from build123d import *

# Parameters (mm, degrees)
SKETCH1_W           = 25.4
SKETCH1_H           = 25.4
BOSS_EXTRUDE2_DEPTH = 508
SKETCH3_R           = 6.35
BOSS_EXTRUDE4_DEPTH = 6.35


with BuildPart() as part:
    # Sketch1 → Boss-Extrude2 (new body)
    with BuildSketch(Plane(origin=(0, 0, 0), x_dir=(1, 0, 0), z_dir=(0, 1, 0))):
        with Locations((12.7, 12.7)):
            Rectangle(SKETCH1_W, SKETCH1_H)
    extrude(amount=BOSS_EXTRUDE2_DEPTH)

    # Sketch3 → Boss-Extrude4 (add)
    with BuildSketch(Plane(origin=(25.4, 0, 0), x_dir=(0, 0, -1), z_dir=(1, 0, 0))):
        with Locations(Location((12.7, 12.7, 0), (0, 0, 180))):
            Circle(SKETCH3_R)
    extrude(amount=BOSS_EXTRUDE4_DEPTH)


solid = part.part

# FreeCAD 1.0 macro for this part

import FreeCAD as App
import Part
import Sketcher

V = App.Vector
Q = App.Units.Quantity


def add_polygon(sketch, points):
    """Adds a closed chain of lines whose ends are joined by coincident constraints."""
    first, n = sketch.GeometryCount, len(points)
    for a, b in zip(points, points[1:] + points[:1]):
        sketch.addGeometry(Part.LineSegment(App.Vector(*a, 0), App.Vector(*b, 0)), False)
    for i in range(n):
        sketch.addConstraint(Sketcher.Constraint("Coincident", first + i, 2, first + (i + 1) % n, 1))

doc = App.newDocument("Part")
body = doc.addObject("PartDesign::Body", "Body")

# Sketch on XZ plane
sketch1 = body.newObject("Sketcher::SketchObject", "Sketch")
sketch1.AttachmentSupport = (doc.getObject("XZ_Plane"), [""])
sketch1.MapMode = "FlatFace"
add_polygon(sketch1, [(0, -25), (0, 0), (25, 0), (25, -25)])  # lines 0-3
sketch1.addConstraint([
    Sketcher.Constraint("Vertical", 0),
    Sketcher.Constraint("Horizontal", 1),
    Sketcher.Constraint("Vertical", 2),
    Sketcher.Constraint("Horizontal", 3),
    Sketcher.Constraint("Coincident", 0, 2, -1, 1),
    Sketcher.Constraint("Equal", 3, 0),
    Sketcher.Constraint("DistanceX", 1, 1, 1, 2, Q("1 in")),
])
pad1 = body.newObject("PartDesign::Pad", "Pad")
pad1.Profile = sketch1
pad1.Length = Q("20 in")
pad1.Reversed = True

# Sketch on YZ plane
sketch2 = body.newObject("Sketcher::SketchObject", "Sketch001")
sketch2.AttachmentSupport = (doc.getObject("YZ_Plane"), [""])
sketch2.MapMode = "FlatFace"
sketch2.AttachmentOffset = App.Placement(V(0, 0, 1 * 25.4), App.Rotation())
sketch2.addGeometry(Part.Circle(V(13, -13, 0), V(0, 0, 1), 6), False)
sketch2.addConstraint([
    Sketcher.Constraint("Diameter", 0, Q("0.5 in")),
    Sketcher.Constraint("DistanceX", -1, 1, 0, 3, Q("0.5 in")),
    Sketcher.Constraint("DistanceY", 0, 3, -1, 1, Q("0.5 in")),
])
pad2 = body.newObject("PartDesign::Pad", "Pad001")
pad2.Profile = sketch2
pad2.Length = Q("0.25 in")

doc.recompute()
